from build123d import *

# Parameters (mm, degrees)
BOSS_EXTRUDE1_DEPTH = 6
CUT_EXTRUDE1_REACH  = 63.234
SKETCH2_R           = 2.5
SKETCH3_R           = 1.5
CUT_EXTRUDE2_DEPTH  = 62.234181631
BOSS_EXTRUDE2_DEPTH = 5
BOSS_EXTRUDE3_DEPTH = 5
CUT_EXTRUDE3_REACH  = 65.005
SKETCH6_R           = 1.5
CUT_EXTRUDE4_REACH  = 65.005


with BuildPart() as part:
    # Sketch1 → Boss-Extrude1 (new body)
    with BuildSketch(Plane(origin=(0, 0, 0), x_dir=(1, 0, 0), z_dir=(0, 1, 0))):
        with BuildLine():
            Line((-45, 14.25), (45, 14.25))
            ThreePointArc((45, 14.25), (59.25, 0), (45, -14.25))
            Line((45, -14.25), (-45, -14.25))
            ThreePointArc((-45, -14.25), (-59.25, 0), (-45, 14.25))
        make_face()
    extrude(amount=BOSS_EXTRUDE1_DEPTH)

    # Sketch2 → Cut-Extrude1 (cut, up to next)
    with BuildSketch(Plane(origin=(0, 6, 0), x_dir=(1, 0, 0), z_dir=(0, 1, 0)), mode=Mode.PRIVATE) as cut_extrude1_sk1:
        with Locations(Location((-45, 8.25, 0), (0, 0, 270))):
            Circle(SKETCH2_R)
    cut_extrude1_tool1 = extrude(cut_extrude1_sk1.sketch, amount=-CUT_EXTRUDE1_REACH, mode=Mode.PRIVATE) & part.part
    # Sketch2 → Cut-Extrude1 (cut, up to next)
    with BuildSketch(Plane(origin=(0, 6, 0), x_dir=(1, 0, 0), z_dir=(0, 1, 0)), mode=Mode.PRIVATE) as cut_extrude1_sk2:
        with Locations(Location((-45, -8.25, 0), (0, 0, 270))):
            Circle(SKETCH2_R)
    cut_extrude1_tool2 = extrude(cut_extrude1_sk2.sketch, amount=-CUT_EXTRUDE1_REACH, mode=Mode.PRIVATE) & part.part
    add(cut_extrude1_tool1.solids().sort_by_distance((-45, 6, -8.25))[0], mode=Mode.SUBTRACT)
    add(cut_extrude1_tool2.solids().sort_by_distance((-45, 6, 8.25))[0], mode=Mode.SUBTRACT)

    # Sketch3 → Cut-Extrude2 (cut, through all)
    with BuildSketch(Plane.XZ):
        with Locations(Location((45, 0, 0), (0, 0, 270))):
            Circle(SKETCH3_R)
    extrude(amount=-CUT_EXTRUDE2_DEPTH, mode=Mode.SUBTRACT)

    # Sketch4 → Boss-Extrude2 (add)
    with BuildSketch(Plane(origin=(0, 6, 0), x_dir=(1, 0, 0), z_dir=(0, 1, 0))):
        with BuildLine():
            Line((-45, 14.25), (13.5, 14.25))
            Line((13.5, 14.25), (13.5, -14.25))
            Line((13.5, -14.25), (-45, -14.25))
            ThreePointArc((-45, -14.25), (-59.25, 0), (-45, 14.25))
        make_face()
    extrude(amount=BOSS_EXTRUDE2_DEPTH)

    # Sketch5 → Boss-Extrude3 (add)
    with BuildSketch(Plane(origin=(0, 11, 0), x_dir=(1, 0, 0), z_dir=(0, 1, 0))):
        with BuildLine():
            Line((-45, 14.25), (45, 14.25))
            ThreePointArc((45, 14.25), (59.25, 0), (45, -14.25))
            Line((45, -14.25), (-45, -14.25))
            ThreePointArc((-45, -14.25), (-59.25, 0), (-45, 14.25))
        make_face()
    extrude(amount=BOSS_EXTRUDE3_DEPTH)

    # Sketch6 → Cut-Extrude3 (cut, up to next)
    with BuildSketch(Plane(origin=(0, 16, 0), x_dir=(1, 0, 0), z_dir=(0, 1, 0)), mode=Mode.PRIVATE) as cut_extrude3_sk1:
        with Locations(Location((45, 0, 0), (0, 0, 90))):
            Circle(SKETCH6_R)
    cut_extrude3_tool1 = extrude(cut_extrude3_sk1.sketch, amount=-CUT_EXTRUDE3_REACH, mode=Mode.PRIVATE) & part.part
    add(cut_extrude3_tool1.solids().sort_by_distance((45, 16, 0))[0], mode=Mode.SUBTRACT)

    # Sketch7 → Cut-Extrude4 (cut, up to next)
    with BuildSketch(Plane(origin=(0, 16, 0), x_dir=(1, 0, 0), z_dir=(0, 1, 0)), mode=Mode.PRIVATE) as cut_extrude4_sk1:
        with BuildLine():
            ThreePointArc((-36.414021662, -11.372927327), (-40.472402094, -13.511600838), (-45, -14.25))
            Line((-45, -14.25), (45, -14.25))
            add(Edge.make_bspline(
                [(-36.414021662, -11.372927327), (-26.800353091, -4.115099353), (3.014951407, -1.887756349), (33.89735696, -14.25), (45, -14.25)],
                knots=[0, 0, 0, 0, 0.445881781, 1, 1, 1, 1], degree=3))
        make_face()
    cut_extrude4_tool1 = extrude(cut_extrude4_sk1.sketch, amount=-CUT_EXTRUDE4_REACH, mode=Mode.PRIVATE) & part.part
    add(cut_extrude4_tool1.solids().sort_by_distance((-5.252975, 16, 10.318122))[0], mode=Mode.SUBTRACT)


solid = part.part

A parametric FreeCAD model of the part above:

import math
import FreeCAD as App
import Part
import Sketcher
Q = App.Units.Quantity

doc = App.newDocument("Part")
body = doc.addObject("PartDesign::Body", "Body")

# Sketch on XZ plane
sketch1 = body.newObject("Sketcher::SketchObject", "Sketch")
sketch1.AttachmentSupport = (doc.getObject("XZ_Plane"), [""])
sketch1.MapMode = "FlatFace"
sketch1.addGeometry(Part.LineSegment(App.Vector(45, -14.25, 0), App.Vector(-45, -14.25, 0)), False)
sketch1.addGeometry(Part.ArcOfCircle(Part.Circle(App.Vector(-45, 0, 0), App.Vector(0, 0, 1), 14.25), math.radians(90), math.radians(270)), False)
sketch1.addGeometry(Part.LineSegment(App.Vector(-45, 14.25, 0), App.Vector(45, 14.25, 0)), False)
sketch1.addGeometry(Part.ArcOfCircle(Part.Circle(App.Vector(45, 0, 0), App.Vector(0, 0, 1), 14.25), math.radians(-90), math.radians(90)), False)
sketch1.addConstraint(Sketcher.Constraint("Tangent", 0, 2, 1, 2))
sketch1.addConstraint(Sketcher.Constraint("Tangent", 1, 1, 2, 1))
sketch1.addConstraint(Sketcher.Constraint("Tangent", 2, 2, 3, 2))
sketch1.addConstraint(Sketcher.Constraint("Tangent", 3, 1, 0, 1))
sketch1.addConstraint(Sketcher.Constraint("Horizontal", 0))
sketch1.addConstraint(Sketcher.Constraint("Horizontal", 2))
sketch1.addConstraint(Sketcher.Constraint("Symmetric", 1, 3, 3, 3, -1, 1))
sketch1.addConstraint(Sketcher.Constraint("DistanceX", 0, 2, 0, 1, Q("90 mm")))
sketch1.addConstraint(Sketcher.Constraint("Radius", 1, Q("14.25 mm")))
pad1 = body.newObject("PartDesign::Pad", "Pad")
pad1.Profile = sketch1
pad1.Length = 6
pad1.Reversed = True

# Sketch on XZ plane
sketch2 = body.newObject("Sketcher::SketchObject", "Sketch001")
sketch2.AttachmentSupport = (doc.getObject("XZ_Plane"), [""])
sketch2.MapMode = "FlatFace"
sketch2.AttachmentOffset = App.Placement(App.Vector(0, 0, -6), App.Rotation())
sketch2.addGeometry(Part.Circle(App.Vector(-45, -8.25, 0), App.Vector(0, 0, 1), 2.5), False)
sketch2.addConstraint(Sketcher.Constraint("Diameter", 0, Q("5 mm")))
sketch2.addConstraint(Sketcher.Constraint("DistanceX", 0, 3, -1, 1, Q("45 mm")))
sketch2.addConstraint(Sketcher.Constraint("DistanceY", 0, 3, -1, 1, Q("8.25 mm")))
pocket1 = body.newObject("PartDesign::Pocket", "Pocket")
pocket1.Profile = sketch2
pocket1.Type = "UpToFirst"
pocket1.Reversed = True

# Sketch on XZ plane
sketch3 = body.newObject("Sketcher::SketchObject", "Sketch002")
sketch3.AttachmentSupport = (doc.getObject("XZ_Plane"), [""])
sketch3.MapMode = "FlatFace"
sketch3.AttachmentOffset = App.Placement(App.Vector(0, 0, -6), App.Rotation())
sketch3.addGeometry(Part.Circle(App.Vector(-45, 8.25, 0), App.Vector(0, 0, 1), 2.5), False)
sketch3.addConstraint(Sketcher.Constraint("Diameter", 0, Q("5 mm")))
sketch3.addConstraint(Sketcher.Constraint("DistanceX", 0, 3, -1, 1, Q("45 mm")))
sketch3.addConstraint(Sketcher.Constraint("DistanceY", -1, 1, 0, 3, Q("8.25 mm")))
pocket2 = body.newObject("PartDesign::Pocket", "Pocket001")
pocket2.Profile = sketch3
pocket2.Type = "UpToFirst"
pocket2.Reversed = True

# Sketch on XZ plane
sketch4 = body.newObject("Sketcher::SketchObject", "Sketch003")
sketch4.AttachmentSupport = (doc.getObject("XZ_Plane"), [""])
sketch4.MapMode = "FlatFace"
sketch4.addGeometry(Part.Circle(App.Vector(45, 0, 0), App.Vector(0, 0, 1), 1.5), False)
sketch4.addConstraint(Sketcher.Constraint("PointOnObject", 0, 3, -1))
sketch4.addConstraint(Sketcher.Constraint("Diameter", 0, Q("3 mm")))
sketch4.addConstraint(Sketcher.Constraint("DistanceX", -1, 1, 0, 3, Q("45 mm")))
pocket3 = body.newObject("PartDesign::Pocket", "Pocket002")
pocket3.Profile = sketch4
pocket3.Type = "ThroughAll"

# Sketch on XZ plane
sketch5 = body.newObject("Sketcher::SketchObject", "Sketch004")
sketch5.AttachmentSupport = (doc.getObject("XZ_Plane"), [""])
sketch5.MapMode = "FlatFace"
sketch5.AttachmentOffset = App.Placement(App.Vector(0, 0, -6), App.Rotation())
sketch5.addGeometry(Part.LineSegment(App.Vector(13.5, -14.25, 0), App.Vector(-45, -14.25, 0)), False)
sketch5.addGeometry(Part.ArcOfCircle(Part.Circle(App.Vector(-45, 0, 0), App.Vector(0, 0, 1), 14.25), math.radians(90), math.radians(270)), False)
sketch5.addGeometry(Part.LineSegment(App.Vector(-45, 14.25, 0), App.Vector(13.5, 14.25, 0)), False)
sketch5.addGeometry(Part.LineSegment(App.Vector(13.5, 14.25, 0), App.Vector(13.5, -14.25, 0)), False)
sketch5.addConstraint(Sketcher.Constraint("Tangent", 0, 2, 1, 2))
sketch5.addConstraint(Sketcher.Constraint("Tangent", 1, 1, 2, 1))
sketch5.addConstraint(Sketcher.Constraint("Coincident", 2, 2, 3, 1))
sketch5.addConstraint(Sketcher.Constraint("Coincident", 3, 2, 0, 1))
sketch5.addConstraint(Sketcher.Constraint("Horizontal", 0))
sketch5.addConstraint(Sketcher.Constraint("Horizontal", 2))
sketch5.addConstraint(Sketcher.Constraint("Vertical", 3))
sketch5.addConstraint(Sketcher.Constraint("PointOnObject", 1, 3, -1))
sketch5.addConstraint(Sketcher.Constraint("Radius", 1, Q("14.25 mm")))
sketch5.addConstraint(Sketcher.Constraint("DistanceX", 0, 2, 0, 1, Q("58.5 mm")))
sketch5.addConstraint(Sketcher.Constraint("DistanceX", 1, 3, -1, 1, Q("45 mm")))
pad2 = body.newObject("PartDesign::Pad", "Pad001")
pad2.Profile = sketch5
pad2.Length = 5
pad2.Reversed = True

# Sketch on XZ plane
sketch6 = body.newObject("Sketcher::SketchObject", "Sketch005")
sketch6.AttachmentSupport = (doc.getObject("XZ_Plane"), [""])
sketch6.MapMode = "FlatFace"
sketch6.AttachmentOffset = App.Placement(App.Vector(0, 0, -11), App.Rotation())
sketch6.addGeometry(Part.LineSegment(App.Vector(45, -14.25, 0), App.Vector(-45, -14.25, 0)), False)
sketch6.addGeometry(Part.ArcOfCircle(Part.Circle(App.Vector(-45, 0, 0), App.Vector(0, 0, 1), 14.25), math.radians(90), math.radians(270)), False)
sketch6.addGeometry(Part.LineSegment(App.Vector(-45, 14.25, 0), App.Vector(45, 14.25, 0)), False)
sketch6.addGeometry(Part.ArcOfCircle(Part.Circle(App.Vector(45, 0, 0), App.Vector(0, 0, 1), 14.25), math.radians(-90), math.radians(90)), False)
sketch6.addConstraint(Sketcher.Constraint("Tangent", 0, 2, 1, 2))
sketch6.addConstraint(Sketcher.Constraint("Tangent", 1, 1, 2, 1))
sketch6.addConstraint(Sketcher.Constraint("Tangent", 2, 2, 3, 2))
sketch6.addConstraint(Sketcher.Constraint("Tangent", 3, 1, 0, 1))
sketch6.addConstraint(Sketcher.Constraint("Horizontal", 0))
sketch6.addConstraint(Sketcher.Constraint("Horizontal", 2))
sketch6.addConstraint(Sketcher.Constraint("Symmetric", 1, 3, 3, 3, -1, 1))
sketch6.addConstraint(Sketcher.Constraint("DistanceX", 0, 2, 0, 1, Q("90 mm")))
sketch6.addConstraint(Sketcher.Constraint("Radius", 1, Q("14.25 mm")))
pad3 = body.newObject("PartDesign::Pad", "Pad002")
pad3.Profile = sketch6
pad3.Length = 5
pad3.Reversed = True

# Sketch on XZ plane
sketch7 = body.newObject("Sketcher::SketchObject", "Sketch006")
sketch7.AttachmentSupport = (doc.getObject("XZ_Plane"), [""])
sketch7.MapMode = "FlatFace"
sketch7.AttachmentOffset = App.Placement(App.Vector(0, 0, -16), App.Rotation())
sketch7.addGeometry(Part.Circle(App.Vector(45, 0, 0), App.Vector(0, 0, 1), 1.5), False)
sketch7.addConstraint(Sketcher.Constraint("PointOnObject", 0, 3, -1))
sketch7.addConstraint(Sketcher.Constraint("Diameter", 0, Q("3 mm")))
sketch7.addConstraint(Sketcher.Constraint("DistanceX", -1, 1, 0, 3, Q("45 mm")))
pocket4 = body.newObject("PartDesign::Pocket", "Pocket003")
pocket4.Profile = sketch7
pocket4.Type = "UpToFirst"
pocket4.Reversed = True

# Sketch on XZ plane
sketch8 = body.newObject("Sketcher::SketchObject", "Sketch007")
sketch8.AttachmentSupport = (doc.getObject("XZ_Plane"), [""])
sketch8.MapMode = "FlatFace"
sketch8.AttachmentOffset = App.Placement(App.Vector(0, 0, -16), App.Rotation())
sketch8.addGeometry(Part.ArcOfCircle(Part.Circle(App.Vector(-45, 0, 0), App.Vector(0, 0, 1), 14.25), math.radians(52.949062), math.radians(90)), False)
sketch8.addGeometry(Part.LineSegment(App.Vector(-45, 14.25, 0), App.Vector(45, 14.25, 0)), False)
sketch8.addGeometry(Part.BSplineCurve([App.Vector(-36.414022, 11.372927, 0), App.Vector(-26.800353, 4.115099, 0), App.Vector(3.014951, 1.887756, 0), App.Vector(33.897357, 14.25, 0), App.Vector(45, 14.25, 0)], [4, 1, 4], [0, 0.445881781, 1], False, 3, [1, 1, 1, 1, 1], False), False)
sketch8.addConstraint(Sketcher.Constraint("Block", 2))
sketch8.addConstraint(Sketcher.Constraint("Tangent", 0, 2, 1, 1))
sketch8.addConstraint(Sketcher.Constraint("Coincident", 1, 2, 2, 2))
sketch8.addConstraint(Sketcher.Constraint("Coincident", 2, 1, 0, 1))
sketch8.addConstraint(Sketcher.Constraint("Horizontal", 1))
sketch8.addConstraint(Sketcher.Constraint("PointOnObject", 0, 3, -1))
pocket5 = body.newObject("PartDesign::Pocket", "Pocket004")
pocket5.Profile = sketch8
pocket5.Type = "UpToFirst"
pocket5.Reversed = True

doc.recompute()
